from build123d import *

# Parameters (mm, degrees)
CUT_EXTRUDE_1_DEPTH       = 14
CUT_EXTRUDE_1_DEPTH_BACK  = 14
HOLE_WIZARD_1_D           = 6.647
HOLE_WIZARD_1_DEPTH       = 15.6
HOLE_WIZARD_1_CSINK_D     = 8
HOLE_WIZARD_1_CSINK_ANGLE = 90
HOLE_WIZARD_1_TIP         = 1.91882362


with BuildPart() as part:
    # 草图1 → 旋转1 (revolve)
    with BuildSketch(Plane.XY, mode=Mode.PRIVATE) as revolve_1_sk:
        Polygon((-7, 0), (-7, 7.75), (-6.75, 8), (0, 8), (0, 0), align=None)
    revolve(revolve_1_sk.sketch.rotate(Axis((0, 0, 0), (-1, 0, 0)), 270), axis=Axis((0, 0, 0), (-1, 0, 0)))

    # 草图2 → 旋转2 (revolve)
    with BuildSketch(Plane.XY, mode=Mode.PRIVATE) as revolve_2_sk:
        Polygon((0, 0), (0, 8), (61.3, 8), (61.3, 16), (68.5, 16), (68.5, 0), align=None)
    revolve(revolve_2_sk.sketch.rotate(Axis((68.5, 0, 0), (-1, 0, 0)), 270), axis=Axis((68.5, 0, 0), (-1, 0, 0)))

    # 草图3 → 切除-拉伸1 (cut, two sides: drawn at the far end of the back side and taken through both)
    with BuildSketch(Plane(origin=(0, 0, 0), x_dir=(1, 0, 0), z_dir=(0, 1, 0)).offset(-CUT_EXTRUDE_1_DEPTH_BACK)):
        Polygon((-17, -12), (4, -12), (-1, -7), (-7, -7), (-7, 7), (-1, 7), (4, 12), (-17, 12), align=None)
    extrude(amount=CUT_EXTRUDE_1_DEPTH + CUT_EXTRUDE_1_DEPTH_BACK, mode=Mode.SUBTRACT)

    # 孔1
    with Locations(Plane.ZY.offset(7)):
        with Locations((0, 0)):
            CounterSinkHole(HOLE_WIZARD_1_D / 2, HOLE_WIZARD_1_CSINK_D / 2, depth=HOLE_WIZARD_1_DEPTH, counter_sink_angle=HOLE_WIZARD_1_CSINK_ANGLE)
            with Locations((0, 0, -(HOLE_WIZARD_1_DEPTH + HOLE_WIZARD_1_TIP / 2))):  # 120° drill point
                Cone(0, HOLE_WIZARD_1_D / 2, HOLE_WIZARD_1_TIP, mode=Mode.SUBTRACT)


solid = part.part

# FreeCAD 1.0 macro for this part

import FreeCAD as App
import Part
import Sketcher
Q = App.Units.Quantity

doc = App.newDocument("Part")
params = doc.addObject("Spreadsheet::Sheet", "Params")
for row, (alias, value) in enumerate([
    ("sketch1_width", "7 mm"),
    ("sketch1_height", "8 mm"),
    ("sketch1_width2", "6.75 mm"),
    ("revolution_angle", "360 deg"),
    ("sketch2_height", "8 mm"),
    ("sketch2_width", "68.5 mm"),
    ("sketch2_width2", "7.2 mm"),
    ("revolution2_angle", "360 deg"),
    ("sketch3_width", "21 mm"),
    ("sketch3_width2", "6 mm"),
    ("sketch3_height", "14 mm"),
    ("sketch3_height2", "24 mm"),
    ("hole_diameter", "6.647 mm"),
    ("hole_depth", "15.6 mm"),
    ("hole_csink_diameter", "8 mm"),
], start=1):
    params.set(f"A{row}", alias)
    params.set(f"B{row}", "=" + value)
    params.setAlias(f"B{row}", alias)

body = doc.addObject("PartDesign::Body", "Body")

sketch1 = body.newObject("Sketcher::SketchObject", "Sketch")
sketch1.AttachmentSupport = (doc.getObject("XY_Plane"), [""])
sketch1.MapMode = "FlatFace"
sketch1.addGeometry([
    Part.LineSegment(App.Vector(-7, 7.75, 0), App.Vector(-7, 0, 0)),
    Part.LineSegment(App.Vector(-7, 0, 0), App.Vector(0, 0, 0)),
    Part.LineSegment(App.Vector(0, 0, 0), App.Vector(0, 8, 0)),
    Part.LineSegment(App.Vector(0, 8, 0), App.Vector(-6.75, 8, 0)),
    Part.LineSegment(App.Vector(-6.75, 8, 0), App.Vector(-7, 7.75, 0)),
], False)
sketch1.addConstraint([
    Sketcher.Constraint("Coincident", 0, 2, 1, 1),
    Sketcher.Constraint("Coincident", 1, 2, 2, 1),
    Sketcher.Constraint("Coincident", 2, 2, 3, 1),
    Sketcher.Constraint("Coincident", 3, 2, 4, 1),
    Sketcher.Constraint("Coincident", 4, 2, 0, 1),
    Sketcher.Constraint("Vertical", 0),
    Sketcher.Constraint("Horizontal", 1),
    Sketcher.Constraint("Vertical", 2),
    Sketcher.Constraint("Horizontal", 3),
    Sketcher.Constraint("Coincident", 1, 2, -1, 1),
    Sketcher.Constraint("DistanceX", 1, 1, 1, 2, 7.0),
    Sketcher.Constraint("DistanceY", 2, 1, 2, 2, 8.0),
    Sketcher.Constraint("Angle", 4, Q("-135 deg")),
    Sketcher.Constraint("DistanceX", 3, 2, 3, 1, 6.75),
])
sketch1.setExpression("Constraints[10]", "Params.sketch1_width")
sketch1.setExpression("Constraints[11]", "Params.sketch1_height")
sketch1.setExpression("Constraints[13]", "Params.sketch1_width2")
revolution = body.newObject("PartDesign::Revolution", "Revolution")
revolution.Profile = sketch1
revolution.ReferenceAxis = (sketch1, ["H_Axis"])
revolution.setExpression("Angle", "Params.revolution_angle")

sketch2 = body.newObject("Sketcher::SketchObject", "Sketch001")
sketch2.AttachmentSupport = (doc.getObject("XY_Plane"), [""])
sketch2.MapMode = "FlatFace"
sketch2.addGeometry([
    Part.LineSegment(App.Vector(0, 8, 0), App.Vector(0, 0, 0)),
    Part.LineSegment(App.Vector(0, 0, 0), App.Vector(68.5, 0, 0)),
    Part.LineSegment(App.Vector(68.5, 0, 0), App.Vector(68.5, 16, 0)),
    Part.LineSegment(App.Vector(68.5, 16, 0), App.Vector(61.3, 16, 0)),
    Part.LineSegment(App.Vector(61.3, 16, 0), App.Vector(61.3, 8, 0)),
    Part.LineSegment(App.Vector(61.3, 8, 0), App.Vector(0, 8, 0)),
], False)
sketch2.addConstraint([
    Sketcher.Constraint("Coincident", 0, 2, 1, 1),
    Sketcher.Constraint("Coincident", 1, 2, 2, 1),
    Sketcher.Constraint("Coincident", 2, 2, 3, 1),
    Sketcher.Constraint("Coincident", 3, 2, 4, 1),
    Sketcher.Constraint("Coincident", 4, 2, 5, 1),
    Sketcher.Constraint("Coincident", 5, 2, 0, 1),
    Sketcher.Constraint("Vertical", 0),
    Sketcher.Constraint("Horizontal", 1),
    Sketcher.Constraint("Vertical", 2),
    Sketcher.Constraint("Horizontal", 3),
    Sketcher.Constraint("Vertical", 4),
    Sketcher.Constraint("Horizontal", 5),
    Sketcher.Constraint("Coincident", 0, 2, -1, 1),
    Sketcher.Constraint("Equal", 0, 4),
    Sketcher.Constraint("DistanceY", 0, 2, 0, 1, 8.0),
    Sketcher.Constraint("DistanceX", 1, 1, 1, 2, 68.5),
    Sketcher.Constraint("DistanceX", 3, 2, 3, 1, 7.2),
])
sketch2.setExpression("Constraints[14]", "Params.sketch2_height")
sketch2.setExpression("Constraints[15]", "Params.sketch2_width")
sketch2.setExpression("Constraints[16]", "Params.sketch2_width2")
revolution2 = body.newObject("PartDesign::Revolution", "Revolution001")
revolution2.Profile = sketch2
revolution2.ReferenceAxis = (sketch2, ["H_Axis"])
revolution2.setExpression("Angle", "Params.revolution2_angle")

sketch3 = body.newObject("Sketcher::SketchObject", "Sketch002")
sketch3.AttachmentSupport = (doc.getObject("XZ_Plane"), [""])
sketch3.MapMode = "FlatFace"
sketch3.addGeometry([
    Part.LineSegment(App.Vector(-17, 12, 0), App.Vector(4, 12, 0)),
    Part.LineSegment(App.Vector(4, 12, 0), App.Vector(-1, 7, 0)),
    Part.LineSegment(App.Vector(-1, 7, 0), App.Vector(-7, 7, 0)),
    Part.LineSegment(App.Vector(-7, 7, 0), App.Vector(-7, -7, 0)),
    Part.LineSegment(App.Vector(-7, -7, 0), App.Vector(-1, -7, 0)),
    Part.LineSegment(App.Vector(-1, -7, 0), App.Vector(4, -12, 0)),
    Part.LineSegment(App.Vector(4, -12, 0), App.Vector(-17, -12, 0)),
    Part.LineSegment(App.Vector(-17, -12, 0), App.Vector(-17, 12, 0)),
], False)
sketch3.addConstraint([
    Sketcher.Constraint("Coincident", 0, 2, 1, 1),
    Sketcher.Constraint("Coincident", 1, 2, 2, 1),
    Sketcher.Constraint("Coincident", 2, 2, 3, 1),
    Sketcher.Constraint("Coincident", 3, 2, 4, 1),
    Sketcher.Constraint("Coincident", 4, 2, 5, 1),
    Sketcher.Constraint("Coincident", 5, 2, 6, 1),
    Sketcher.Constraint("Coincident", 6, 2, 7, 1),
    Sketcher.Constraint("Coincident", 7, 2, 0, 1),
    Sketcher.Constraint("Horizontal", 0),
    Sketcher.Constraint("Horizontal", 2),
    Sketcher.Constraint("Vertical", 3),
    Sketcher.Constraint("Horizontal", 4),
    Sketcher.Constraint("Horizontal", 6),
    Sketcher.Constraint("Vertical", 7),
    Sketcher.Constraint("Symmetric", 1, 2, 4, 2, -1),
    Sketcher.Constraint("Symmetric", 0, 2, 5, 2, -1),
    Sketcher.Constraint("Perpendicular", 1, 5),
    Sketcher.Constraint("DistanceX", 0, 1, 0, 2, 21.0),
    Sketcher.Constraint("DistanceX", 2, 2, 2, 1, 6.0),
    Sketcher.Constraint("DistanceY", 3, 2, 3, 1, 14.0),
    Sketcher.Constraint("DistanceY", 7, 1, 7, 2, 24.0),
    Sketcher.Constraint("DistanceX", -1, 1, 0, 2, 4.0),
])
sketch3.setExpression("Constraints[17]", "Params.sketch3_width")
sketch3.setExpression("Constraints[18]", "Params.sketch3_width2")
sketch3.setExpression("Constraints[19]", "Params.sketch3_height")
sketch3.setExpression("Constraints[20]", "Params.sketch3_height2")
pocket1 = body.newObject("PartDesign::Pocket", "Pocket")
pocket1.Profile = sketch3
pocket1.Type = "ThroughAll"
pocket1.Midplane = True

sketch4 = body.newObject("Sketcher::SketchObject", "Sketch003")
sketch4.AttachmentSupport = (doc.getObject("YZ_Plane"), [""])
sketch4.MapMode = "FlatFace"
sketch4.AttachmentOffset = App.Placement(App.Vector(0, 0, -7), App.Rotation())
sketch4.addGeometry(Part.Circle(App.Vector(0, 0, 0), App.Vector(0, 0, 1), 3.3235), False)
sketch4.addConstraint([
    Sketcher.Constraint("Coincident", 0, 3, -1, 1),
    Sketcher.Constraint("Diameter", 0, 6.647),
])
doc.recompute()
hole = body.newObject("PartDesign::Hole", "Hole")
hole.Profile = sketch4
hole.ThreadType = "None"
hole.setExpression("Diameter", "Params.hole_diameter")
hole.DepthType = "Dimension"
hole.setExpression("Depth", "Params.hole_depth")
hole.DrillPoint = "Angled"
hole.DrillPointAngle = 120
hole.HoleCutType = "Countersink"
hole.setExpression("HoleCutDiameter", "Params.hole_csink_diameter")
hole.HoleCutCountersinkAngle = 90
hole.Reversed = True

doc.recompute()
